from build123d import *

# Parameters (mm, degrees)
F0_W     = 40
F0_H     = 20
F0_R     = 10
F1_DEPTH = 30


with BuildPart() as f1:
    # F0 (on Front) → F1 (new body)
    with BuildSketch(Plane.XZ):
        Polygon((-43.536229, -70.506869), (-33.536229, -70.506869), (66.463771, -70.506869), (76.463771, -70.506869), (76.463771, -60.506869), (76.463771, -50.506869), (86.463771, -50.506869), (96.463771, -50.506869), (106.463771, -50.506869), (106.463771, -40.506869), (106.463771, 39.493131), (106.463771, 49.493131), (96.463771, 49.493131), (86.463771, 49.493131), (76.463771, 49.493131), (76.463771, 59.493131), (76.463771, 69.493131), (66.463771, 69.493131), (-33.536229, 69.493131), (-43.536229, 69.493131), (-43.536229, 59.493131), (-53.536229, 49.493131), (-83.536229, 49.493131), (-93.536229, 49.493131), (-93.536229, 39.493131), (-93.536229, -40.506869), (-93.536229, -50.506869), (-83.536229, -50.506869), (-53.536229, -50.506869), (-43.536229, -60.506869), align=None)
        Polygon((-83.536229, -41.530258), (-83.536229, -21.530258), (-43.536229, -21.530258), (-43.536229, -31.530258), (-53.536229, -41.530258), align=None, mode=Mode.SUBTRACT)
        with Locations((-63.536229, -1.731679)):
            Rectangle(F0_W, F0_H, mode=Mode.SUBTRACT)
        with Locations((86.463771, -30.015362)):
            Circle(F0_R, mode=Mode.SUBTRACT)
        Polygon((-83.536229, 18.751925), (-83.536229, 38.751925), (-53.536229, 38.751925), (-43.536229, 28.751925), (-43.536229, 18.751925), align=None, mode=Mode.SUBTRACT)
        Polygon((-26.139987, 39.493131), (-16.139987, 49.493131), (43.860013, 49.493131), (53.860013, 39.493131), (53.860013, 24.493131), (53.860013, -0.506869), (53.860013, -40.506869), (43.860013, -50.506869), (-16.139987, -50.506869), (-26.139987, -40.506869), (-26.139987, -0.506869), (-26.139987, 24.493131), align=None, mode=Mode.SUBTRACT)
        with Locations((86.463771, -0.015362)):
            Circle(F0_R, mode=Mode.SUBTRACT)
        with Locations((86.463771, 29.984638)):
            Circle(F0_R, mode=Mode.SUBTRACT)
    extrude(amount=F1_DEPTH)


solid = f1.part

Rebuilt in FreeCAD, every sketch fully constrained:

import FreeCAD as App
import Part
import Sketcher
from FreeCAD import Vector

doc = App.newDocument("Part")
body = doc.addObject("PartDesign::Body", "Body")

sketch1 = doc.addObject("Sketcher::SketchObject", "Sketch")
body.addObject(sketch1)
sketch1.AttachmentSupport = (doc.XZ_Plane, [""])
sketch1.MapMode = "FlatFace"
sketch1.addGeometry([
    Part.LineSegment(Vector(-44, -71, 0), Vector(76, -71, 0)),
    Part.LineSegment(Vector(76, -71, 0), Vector(76, -51, 0)),
    Part.LineSegment(Vector(76, -51, 0), Vector(106, -51, 0)),
    Part.LineSegment(Vector(106, -51, 0), Vector(106, 49, 0)),
    Part.LineSegment(Vector(106, 49, 0), Vector(76, 49, 0)),
    Part.LineSegment(Vector(76, 49, 0), Vector(76, 69, 0)),
    Part.LineSegment(Vector(76, 69, 0), Vector(-44, 69, 0)),
    Part.LineSegment(Vector(-44, 69, 0), Vector(-44, 59, 0)),
    Part.LineSegment(Vector(-44, 59, 0), Vector(-54, 49, 0)),
    Part.LineSegment(Vector(-54, 49, 0), Vector(-94, 49, 0)),
    Part.LineSegment(Vector(-94, 49, 0), Vector(-94, -51, 0)),
    Part.LineSegment(Vector(-94, -51, 0), Vector(-54, -51, 0)),
    Part.LineSegment(Vector(-54, -51, 0), Vector(-44, -61, 0)),
    Part.LineSegment(Vector(-44, -61, 0), Vector(-44, -71, 0)),
    Part.LineSegment(Vector(-54, -42, 0), Vector(-84, -42, 0)),
    Part.LineSegment(Vector(-84, -42, 0), Vector(-84, -22, 0)),
    Part.LineSegment(Vector(-84, -22, 0), Vector(-44, -22, 0)),
    Part.LineSegment(Vector(-44, -22, 0), Vector(-44, -32, 0)),
    Part.LineSegment(Vector(-44, -32, 0), Vector(-54, -42, 0)),
    Part.LineSegment(Vector(-44, -12, 0), Vector(-84, -12, 0)),
    Part.LineSegment(Vector(-84, -12, 0), Vector(-84, 8, 0)),
    Part.LineSegment(Vector(-84, 8, 0), Vector(-44, 8, 0)),
    Part.LineSegment(Vector(-44, 8, 0), Vector(-44, -12, 0)),
    Part.Circle(Vector(86, -30, 0), Vector(0, 0, 1), 10),
    Part.LineSegment(Vector(-44, 19, 0), Vector(-84, 19, 0)),
    Part.LineSegment(Vector(-84, 19, 0), Vector(-84, 39, 0)),
    Part.LineSegment(Vector(-84, 39, 0), Vector(-54, 39, 0)),
    Part.LineSegment(Vector(-54, 39, 0), Vector(-44, 29, 0)),
    Part.LineSegment(Vector(-44, 29, 0), Vector(-44, 19, 0)),
    Part.LineSegment(Vector(-26, -41, 0), Vector(-26, 39, 0)),
    Part.LineSegment(Vector(-26, 39, 0), Vector(-16, 49, 0)),
    Part.LineSegment(Vector(-16, 49, 0), Vector(44, 49, 0)),
    Part.LineSegment(Vector(44, 49, 0), Vector(54, 39, 0)),
    Part.LineSegment(Vector(54, 39, 0), Vector(54, -41, 0)),
    Part.LineSegment(Vector(54, -41, 0), Vector(44, -51, 0)),
    Part.LineSegment(Vector(44, -51, 0), Vector(-16, -51, 0)),
    Part.LineSegment(Vector(-16, -51, 0), Vector(-26, -41, 0)),
    Part.Circle(Vector(86, 0, 0), Vector(0, 0, 1), 10),
    Part.Circle(Vector(86, 30, 0), Vector(0, 0, 1), 10),
], False)
sketch1.addConstraint([
    Sketcher.Constraint("Coincident", 0, 2, 1, 1),
    Sketcher.Constraint("Coincident", 1, 2, 2, 1),
    Sketcher.Constraint("Coincident", 2, 2, 3, 1),
    Sketcher.Constraint("Coincident", 3, 2, 4, 1),
    Sketcher.Constraint("Coincident", 4, 2, 5, 1),
    Sketcher.Constraint("Coincident", 5, 2, 6, 1),
    Sketcher.Constraint("Coincident", 6, 2, 7, 1),
    Sketcher.Constraint("Coincident", 7, 2, 8, 1),
    Sketcher.Constraint("Coincident", 8, 2, 9, 1),
    Sketcher.Constraint("Coincident", 9, 2, 10, 1),
    Sketcher.Constraint("Coincident", 10, 2, 11, 1),
    Sketcher.Constraint("Coincident", 11, 2, 12, 1),
    Sketcher.Constraint("Coincident", 12, 2, 13, 1),
    Sketcher.Constraint("Coincident", 13, 2, 0, 1),
    Sketcher.Constraint("Coincident", 14, 2, 15, 1),
    Sketcher.Constraint("Coincident", 15, 2, 16, 1),
    Sketcher.Constraint("Coincident", 16, 2, 17, 1),
    Sketcher.Constraint("Coincident", 17, 2, 18, 1),
    Sketcher.Constraint("Coincident", 18, 2, 14, 1),
    Sketcher.Constraint("Coincident", 19, 2, 20, 1),
    Sketcher.Constraint("Coincident", 20, 2, 21, 1),
    Sketcher.Constraint("Coincident", 21, 2, 22, 1),
    Sketcher.Constraint("Coincident", 22, 2, 19, 1),
    Sketcher.Constraint("Coincident", 24, 2, 25, 1),
    Sketcher.Constraint("Coincident", 25, 2, 26, 1),
    Sketcher.Constraint("Coincident", 26, 2, 27, 1),
    Sketcher.Constraint("Coincident", 27, 2, 28, 1),
    Sketcher.Constraint("Coincident", 28, 2, 24, 1),
    Sketcher.Constraint("Coincident", 29, 2, 30, 1),
    Sketcher.Constraint("Coincident", 30, 2, 31, 1),
    Sketcher.Constraint("Coincident", 31, 2, 32, 1),
    Sketcher.Constraint("Coincident", 32, 2, 33, 1),
    Sketcher.Constraint("Coincident", 33, 2, 34, 1),
    Sketcher.Constraint("Coincident", 34, 2, 35, 1),
    Sketcher.Constraint("Coincident", 35, 2, 36, 1),
    Sketcher.Constraint("Coincident", 36, 2, 29, 1),
    Sketcher.Constraint("Horizontal", 0),
    Sketcher.Constraint("Vertical", 1),
    Sketcher.Constraint("Horizontal", 2),
    Sketcher.Constraint("Vertical", 3),
    Sketcher.Constraint("Horizontal", 4),
    Sketcher.Constraint("Vertical", 5),
    Sketcher.Constraint("Horizontal", 6),
    Sketcher.Constraint("Vertical", 7),
    Sketcher.Constraint("Horizontal", 9),
    Sketcher.Constraint("Vertical", 10),
    Sketcher.Constraint("Horizontal", 11),
    Sketcher.Constraint("Vertical", 13),
    Sketcher.Constraint("Horizontal", 14),
    Sketcher.Constraint("Vertical", 15),
    Sketcher.Constraint("Horizontal", 16),
    Sketcher.Constraint("Vertical", 17),
    Sketcher.Constraint("Horizontal", 19),
    Sketcher.Constraint("Vertical", 20),
    Sketcher.Constraint("Horizontal", 21),
    Sketcher.Constraint("Vertical", 22),
    Sketcher.Constraint("Horizontal", 24),
    Sketcher.Constraint("Vertical", 25),
    Sketcher.Constraint("Horizontal", 26),
    Sketcher.Constraint("Vertical", 28),
    Sketcher.Constraint("Vertical", 29),
    Sketcher.Constraint("Horizontal", 31),
    Sketcher.Constraint("Vertical", 33),
    Sketcher.Constraint("Horizontal", 35),
    Sketcher.Constraint("Equal", 23, 37),
    Sketcher.Constraint("Equal", 37, 38),
    Sketcher.Constraint("Perpendicular", 8, 12),
    Sketcher.Constraint("Perpendicular", 12, 18),
    Sketcher.Constraint("Perpendicular", 18, 27),
    Sketcher.Constraint("Perpendicular", 27, 30),
    Sketcher.Constraint("Perpendicular", 30, 32),
    Sketcher.Constraint("Perpendicular", 32, 34),
    Sketcher.Constraint("Perpendicular", 34, 36),
    Sketcher.Constraint("Horizontal", 4, 2, 8, 2),
    Sketcher.Constraint("Horizontal", 2, 2, 10, 2),
    Sketcher.Constraint("Horizontal", 9, 2, 30, 2),
    Sketcher.Constraint("Horizontal", 29, 2, 32, 2),
    Sketcher.Constraint("Horizontal", 11, 2, 34, 2),
    Sketcher.Constraint("Horizontal", 33, 2, 36, 2),
    Sketcher.Constraint("Vertical", 23, 3, 37, 3),
    Sketcher.Constraint("Vertical", 37, 3, 38, 3),
    Sketcher.Constraint("Vertical", 1, 2, 4, 2),
    Sketcher.Constraint("Vertical", 8, 2, 11, 2),
    Sketcher.Constraint("Vertical", 7, 2, 12, 2),
    Sketcher.Constraint("Vertical", 13, 2, 16, 2),
    Sketcher.Constraint("Vertical", 11, 2, 18, 2),
    Sketcher.Constraint("Vertical", 15, 2, 19, 2),
    Sketcher.Constraint("Vertical", 17, 2, 21, 2),
    Sketcher.Constraint("Vertical", 20, 2, 24, 2),
    Sketcher.Constraint("Vertical", 18, 2, 26, 2),
    Sketcher.Constraint("Vertical", 22, 2, 27, 2),
    Sketcher.Constraint("Vertical", 31, 2, 34, 2),
    Sketcher.Constraint("Vertical", 30, 2, 35, 2),
    Sketcher.Constraint("Equal", 4, 14),
    Sketcher.Constraint("Equal", 11, 16),
    Sketcher.Constraint("Equal", 1, 5),
    Sketcher.Constraint("Equal", 5, 15),
    Sketcher.Constraint("Equal", 15, 20),
    Sketcher.Constraint("Equal", 22, 25),
    Sketcher.Constraint("Equal", 27, 30),
    Sketcher.Constraint("Diameter", 23, 20.0),
    Sketcher.Constraint("DistanceX", 0, 1, 0, 2, 120.0),
    Sketcher.Constraint("DistanceX", 2, 1, 2, 2, 30.0),
    Sketcher.Constraint("DistanceX", 9, 2, 9, 1, 40.0),
    Sketcher.Constraint("DistanceX", 31, 1, 31, 2, 60.0),
    Sketcher.Constraint("DistanceY", 1, 1, 1, 2, 20.0),
    Sketcher.Constraint("DistanceY", 3, 1, 3, 2, 100.0),
    Sketcher.Constraint("DistanceY", 23, 3, 37, 3, 30.0),
    Sketcher.Constraint("DistanceY", 37, 3, 38, 3, 30.0),
    Sketcher.Constraint("DistanceX", 0, 2, 23, 3, 10.0),
    Sketcher.Constraint("DistanceX", -1, 1, 23, 3, 86.463771),
    Sketcher.Constraint("DistanceY", 23, 3, -1, 1, 30.015362),
    Sketcher.Constraint("DistanceY", 0, 2, -1, 1, 70.506869),
    Sketcher.Constraint("DistanceY", 14, 2, -1, 1, 41.530258),
    Sketcher.Constraint("DistanceY", 19, 2, -1, 1, 11.731679),
    Sketcher.Constraint("DistanceX", 27, 2, 29, 2, 17.396242),
    Sketcher.Constraint("DistanceY", -1, 1, 24, 2, 18.751925),
])
pad1 = doc.addObject("PartDesign::Pad", "Pad")
body.addObject(pad1)
pad1.Profile = sketch1
pad1.Length = 30

doc.recompute()
